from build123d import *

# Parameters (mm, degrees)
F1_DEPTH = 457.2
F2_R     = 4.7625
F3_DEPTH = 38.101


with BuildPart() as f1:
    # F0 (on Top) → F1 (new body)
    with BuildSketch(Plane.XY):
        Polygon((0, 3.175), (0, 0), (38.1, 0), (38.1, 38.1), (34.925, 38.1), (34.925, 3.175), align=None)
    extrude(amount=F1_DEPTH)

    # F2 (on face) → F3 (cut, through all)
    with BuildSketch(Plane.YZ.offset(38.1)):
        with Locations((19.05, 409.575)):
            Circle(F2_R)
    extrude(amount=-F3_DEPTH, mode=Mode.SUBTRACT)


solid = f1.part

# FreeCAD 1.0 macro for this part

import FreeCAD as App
import Part
import Sketcher

V = App.Vector
Q = App.Units.Quantity

doc = App.newDocument("Part")
body = doc.addObject("PartDesign::Body", "Body")

# Sketch on XY plane
sketch1 = body.newObject("Sketcher::SketchObject", "Sketch")
sketch1.AttachmentSupport = (doc.getObject("XY_Plane"), [""])
sketch1.MapMode = "FlatFace"
sketch1.addGeometry(Part.LineSegment(V(0, 3.2, 0), V(0, 0, 0)), False)
sketch1.addGeometry(Part.LineSegment(V(0, 0, 0), V(38.1, 0, 0)), False)
sketch1.addGeometry(Part.LineSegment(V(38.1, 0, 0), V(38.1, 38.1, 0)), False)
sketch1.addGeometry(Part.LineSegment(V(38.1, 38.1, 0), V(34.9, 38.1, 0)), False)
sketch1.addGeometry(Part.LineSegment(V(34.9, 38.1, 0), V(34.9, 3.2, 0)), False)
sketch1.addGeometry(Part.LineSegment(V(34.9, 3.2, 0), V(0, 3.2, 0)), False)
sketch1.addConstraint(Sketcher.Constraint("Coincident", 0, 2, 1, 1))
sketch1.addConstraint(Sketcher.Constraint("Coincident", 1, 2, 2, 1))
sketch1.addConstraint(Sketcher.Constraint("Coincident", 2, 2, 3, 1))
sketch1.addConstraint(Sketcher.Constraint("Coincident", 3, 2, 4, 1))
sketch1.addConstraint(Sketcher.Constraint("Coincident", 4, 2, 5, 1))
sketch1.addConstraint(Sketcher.Constraint("Coincident", 5, 2, 0, 1))
sketch1.addConstraint(Sketcher.Constraint("Vertical", 0))
sketch1.addConstraint(Sketcher.Constraint("Horizontal", 1))
sketch1.addConstraint(Sketcher.Constraint("Vertical", 2))
sketch1.addConstraint(Sketcher.Constraint("Horizontal", 3))
sketch1.addConstraint(Sketcher.Constraint("Vertical", 4))
sketch1.addConstraint(Sketcher.Constraint("Horizontal", 5))
sketch1.addConstraint(Sketcher.Constraint("Coincident", 0, 2, -1, 1))
sketch1.addConstraint(Sketcher.Constraint("Equal", 3, 0))
sketch1.addConstraint(Sketcher.Constraint("Equal", 1, 2))
sketch1.addConstraint(Sketcher.Constraint("DistanceX", 1, 1, 1, 2, Q("1.5 in")))
sketch1.addConstraint(Sketcher.Constraint("DistanceX", 3, 2, 3, 1, Q("0.125 in")))
pad1 = body.newObject("PartDesign::Pad", "Pad")
pad1.Profile = sketch1
pad1.Length = Q("18 in")

# Sketch on YZ plane
sketch2 = body.newObject("Sketcher::SketchObject", "Sketch001")
sketch2.AttachmentSupport = (doc.getObject("YZ_Plane"), [""])
sketch2.MapMode = "FlatFace"
sketch2.AttachmentOffset = App.Placement(V(0, 0, 1.5 * 25.4), App.Rotation())
sketch2.addGeometry(Part.Circle(V(19.1, 409.6, 0), V(0, 0, 1), 4.8), False)
sketch2.addConstraint(Sketcher.Constraint("Diameter", 0, Q("0.375 in")))
sketch2.addConstraint(Sketcher.Constraint("DistanceX", -1, 1, 0, 3, Q("0.75 in")))
sketch2.addConstraint(Sketcher.Constraint("DistanceY", -1, 1, 0, 3, Q("16.125 in")))
pocket1 = body.newObject("PartDesign::Pocket", "Pocket")
pocket1.Profile = sketch2
pocket1.Type = "ThroughAll"

doc.recompute()
